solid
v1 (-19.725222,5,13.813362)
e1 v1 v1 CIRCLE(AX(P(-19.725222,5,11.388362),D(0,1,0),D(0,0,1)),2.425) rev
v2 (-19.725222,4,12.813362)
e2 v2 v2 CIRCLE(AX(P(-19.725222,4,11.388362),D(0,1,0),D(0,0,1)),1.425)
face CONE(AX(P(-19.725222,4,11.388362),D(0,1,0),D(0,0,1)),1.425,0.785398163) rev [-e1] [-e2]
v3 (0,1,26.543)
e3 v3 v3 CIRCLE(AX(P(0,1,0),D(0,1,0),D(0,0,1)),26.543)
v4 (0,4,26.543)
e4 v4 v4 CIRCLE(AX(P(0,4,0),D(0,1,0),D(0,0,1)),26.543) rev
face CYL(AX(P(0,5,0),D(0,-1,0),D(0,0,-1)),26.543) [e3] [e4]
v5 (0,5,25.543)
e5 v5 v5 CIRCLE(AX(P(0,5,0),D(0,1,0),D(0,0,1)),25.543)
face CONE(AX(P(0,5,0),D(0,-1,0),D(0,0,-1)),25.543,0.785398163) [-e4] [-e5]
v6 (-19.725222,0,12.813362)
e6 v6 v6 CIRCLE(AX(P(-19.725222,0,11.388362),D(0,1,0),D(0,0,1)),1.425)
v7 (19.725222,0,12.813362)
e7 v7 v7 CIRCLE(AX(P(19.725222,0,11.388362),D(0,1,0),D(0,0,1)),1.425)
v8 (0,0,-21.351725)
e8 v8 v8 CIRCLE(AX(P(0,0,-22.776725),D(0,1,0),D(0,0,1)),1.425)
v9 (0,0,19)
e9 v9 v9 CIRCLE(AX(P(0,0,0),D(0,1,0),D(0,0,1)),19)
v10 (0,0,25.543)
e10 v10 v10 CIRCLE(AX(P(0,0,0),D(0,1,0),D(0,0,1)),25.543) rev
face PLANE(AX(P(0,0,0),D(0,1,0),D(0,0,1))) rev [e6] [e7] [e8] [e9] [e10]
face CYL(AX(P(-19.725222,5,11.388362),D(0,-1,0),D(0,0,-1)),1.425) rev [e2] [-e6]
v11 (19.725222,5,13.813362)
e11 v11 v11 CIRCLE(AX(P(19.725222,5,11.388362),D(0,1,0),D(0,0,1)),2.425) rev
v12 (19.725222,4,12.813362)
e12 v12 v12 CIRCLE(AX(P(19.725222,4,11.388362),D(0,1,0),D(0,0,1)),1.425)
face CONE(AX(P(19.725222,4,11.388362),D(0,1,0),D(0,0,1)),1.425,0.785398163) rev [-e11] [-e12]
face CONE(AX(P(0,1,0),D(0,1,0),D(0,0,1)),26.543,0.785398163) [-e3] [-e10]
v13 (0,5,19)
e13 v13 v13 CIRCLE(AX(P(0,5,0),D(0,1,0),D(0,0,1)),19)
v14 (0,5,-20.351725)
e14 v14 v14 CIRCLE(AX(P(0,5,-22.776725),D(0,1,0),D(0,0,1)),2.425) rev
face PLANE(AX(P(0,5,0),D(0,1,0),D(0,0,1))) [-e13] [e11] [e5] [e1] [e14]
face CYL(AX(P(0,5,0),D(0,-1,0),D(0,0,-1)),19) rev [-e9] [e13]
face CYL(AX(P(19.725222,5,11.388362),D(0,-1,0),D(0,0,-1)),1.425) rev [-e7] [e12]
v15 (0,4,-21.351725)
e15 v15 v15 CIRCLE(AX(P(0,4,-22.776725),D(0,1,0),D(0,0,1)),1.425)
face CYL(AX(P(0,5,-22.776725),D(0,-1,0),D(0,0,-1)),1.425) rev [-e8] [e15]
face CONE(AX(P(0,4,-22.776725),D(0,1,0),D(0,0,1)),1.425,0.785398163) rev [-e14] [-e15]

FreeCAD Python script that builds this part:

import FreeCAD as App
import Part
import Sketcher
from FreeCAD import Vector
Q = App.Units.Quantity


def edges_at(feature, points):
    """Names of the edges that pass closest to the given points."""
    edges = feature.Shape.Edges
    near = lambda p: min(range(len(edges)), key=lambda i: edges[i].distToShape(Part.Vertex(*p))[0])
    return sorted({f"Edge{near(p) + 1}" for p in points})

doc = App.newDocument("Part")
body = doc.addObject("PartDesign::Body", "Body")

sketch1 = body.newObject("Sketcher::SketchObject", "Sketch")
sketch1.AttachmentSupport = (doc.getObject("XZ_Plane"), [""])
sketch1.MapMode = "FlatFace"
sketch1.addGeometry([
    Part.Circle(Vector(0, 0, 0), Vector(0, 0, 1), 26.5),
    Part.Circle(Vector(-19.7, 11.4, 0), Vector(0, 0, 1), 1.4),
    Part.Circle(Vector(19.7, 11.4, 0), Vector(0, 0, 1), 1.4),
    Part.Circle(Vector(0, 0, 0), Vector(0, 0, 1), 19),
    Part.Circle(Vector(0, -22.8, 0), Vector(0, 0, 1), 1.4),
], False)
sketch1.addConstraint([
    Sketcher.Constraint("Coincident", 0, 3, -1, 1),
    Sketcher.Constraint("Coincident", 3, 3, -1, 1),
    Sketcher.Constraint("Equal", 1, 2),
    Sketcher.Constraint("Equal", 2, 4),
    Sketcher.Constraint("Symmetric", 1, 3, 2, 3, -2),
    Sketcher.Constraint("PointOnObject", 4, 3, -2),
    Sketcher.Constraint("Diameter", 3, Q("38 mm")),
    Sketcher.Constraint("Diameter", 1, Q("2.85 mm")),
    Sketcher.Constraint("Diameter", 0, Q("53.086 mm")),
    Sketcher.Constraint("DistanceX", 1, 3, -1, 1, Q("19.725222 mm")),
    Sketcher.Constraint("DistanceY", -1, 1, 1, 3, Q("11.388362 mm")),
    Sketcher.Constraint("DistanceY", 4, 3, -1, 1, Q("22.776725 mm")),
])
pad1 = body.newObject("PartDesign::Pad", "Pad")
pad1.Profile = sketch1
pad1.Length = 5
pad1.Reversed = True
doc.recompute()

chamfer = body.newObject("PartDesign::Chamfer", "Chamfer")
chamfer.Base = (pad1, edges_at(pad1, [(-1.425, 5, -22.777)]))
chamfer.Size = 1
doc.recompute()

chamfer2 = body.newObject("PartDesign::Chamfer", "Chamfer001")
chamfer2.Base = (chamfer, edges_at(chamfer, [(-21.15, 5, 11.388)]))
chamfer2.Size = 1
doc.recompute()

chamfer3 = body.newObject("PartDesign::Chamfer", "Chamfer002")
chamfer3.Base = (chamfer2, edges_at(chamfer2, [(18.3, 5, 11.388)]))
chamfer3.Size = 1
doc.recompute()

chamfer4 = body.newObject("PartDesign::Chamfer", "Chamfer003")
chamfer4.Base = (chamfer3, edges_at(chamfer3, [(-26.543, 5, 0)]))
chamfer4.Size = 1
doc.recompute()

chamfer5 = body.newObject("PartDesign::Chamfer", "Chamfer004")
chamfer5.Base = (chamfer4, edges_at(chamfer4, [(-26.543, 0, 0)]))
chamfer5.Size = 1

doc.recompute()
